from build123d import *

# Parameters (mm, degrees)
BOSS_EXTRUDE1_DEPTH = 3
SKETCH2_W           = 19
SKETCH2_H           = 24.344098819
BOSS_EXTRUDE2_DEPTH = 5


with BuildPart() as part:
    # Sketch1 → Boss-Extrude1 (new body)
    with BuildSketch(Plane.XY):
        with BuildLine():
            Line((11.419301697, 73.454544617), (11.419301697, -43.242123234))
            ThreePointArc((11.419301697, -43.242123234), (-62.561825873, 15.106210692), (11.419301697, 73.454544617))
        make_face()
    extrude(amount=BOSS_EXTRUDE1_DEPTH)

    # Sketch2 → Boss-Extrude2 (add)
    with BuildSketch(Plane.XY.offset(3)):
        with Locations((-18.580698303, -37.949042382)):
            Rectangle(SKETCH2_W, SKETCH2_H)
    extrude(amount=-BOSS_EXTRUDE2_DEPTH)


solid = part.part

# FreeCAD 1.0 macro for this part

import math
import FreeCAD as App
import Part
import Sketcher

doc = App.newDocument("Part")
body = doc.addObject("PartDesign::Body", "Body")

sketch1 = doc.addObject("Sketcher::SketchObject", "Sketch")
body.addObject(sketch1)
sketch1.AttachmentSupport = (doc.XY_Plane, [""])
sketch1.MapMode = "FlatFace"
sketch1.addGeometry(Part.LineSegment(App.Vector(11, -43, 0), App.Vector(11, 73, 0)), False)
sketch1.addGeometry(Part.ArcOfCircle(Part.Circle(App.Vector(-3, 15, 0), App.Vector(0, 0, 1), 60), math.radians(77), math.radians(283)), False)
sketch1.addConstraint(Sketcher.Constraint("Coincident", 0, 1, 1, 2))
sketch1.addConstraint(Sketcher.Constraint("Coincident", 1, 1, 0, 2))
sketch1.addConstraint(Sketcher.Constraint("Vertical", 0))
sketch1.addConstraint(Sketcher.Constraint("Radius", 1, 60.0))
sketch1.addConstraint(Sketcher.Constraint("DistanceX", -1, 1, 0, 1, 11.419302))
sketch1.addConstraint(Sketcher.Constraint("DistanceY", 0, 1, 0, 2, 116.696668))
sketch1.addConstraint(Sketcher.Constraint("DistanceY", -1, 1, 1, 3, 15.106211))
pad1 = doc.addObject("PartDesign::Pad", "Pad")
body.addObject(pad1)
pad1.Profile = sketch1
pad1.Length = 3

sketch2 = doc.addObject("Sketcher::SketchObject", "Sketch001")
body.addObject(sketch2)
sketch2.AttachmentSupport = (doc.XY_Plane, [""])
sketch2.MapMode = "FlatFace"
sketch2.AttachmentOffset = App.Placement(App.Vector(0, 0, 3), App.Rotation())
sketch2.addGeometry(Part.LineSegment(App.Vector(-28, -26, 0), App.Vector(-28, -50, 0)), False)
sketch2.addGeometry(Part.LineSegment(App.Vector(-28, -50, 0), App.Vector(-9, -50, 0)), False)
sketch2.addGeometry(Part.LineSegment(App.Vector(-9, -50, 0), App.Vector(-9, -26, 0)), False)
sketch2.addGeometry(Part.LineSegment(App.Vector(-9, -26, 0), App.Vector(-28, -26, 0)), False)
sketch2.addConstraint(Sketcher.Constraint("Coincident", 0, 2, 1, 1))
sketch2.addConstraint(Sketcher.Constraint("Coincident", 1, 2, 2, 1))
sketch2.addConstraint(Sketcher.Constraint("Coincident", 2, 2, 3, 1))
sketch2.addConstraint(Sketcher.Constraint("Coincident", 3, 2, 0, 1))
sketch2.addConstraint(Sketcher.Constraint("Vertical", 0))
sketch2.addConstraint(Sketcher.Constraint("Horizontal", 1))
sketch2.addConstraint(Sketcher.Constraint("Vertical", 2))
sketch2.addConstraint(Sketcher.Constraint("Horizontal", 3))
sketch2.addConstraint(Sketcher.Constraint("DistanceX", 1, 1, 1, 2, 19.0))
sketch2.addConstraint(Sketcher.Constraint("DistanceY", 0, 2, 0, 1, 24.344099))
sketch2.addConstraint(Sketcher.Constraint("DistanceX", 0, 2, -1, 1, 28.080698))
sketch2.addConstraint(Sketcher.Constraint("DistanceY", 0, 2, -1, 1, 50.121092))
pad2 = doc.addObject("PartDesign::Pad", "Pad001")
body.addObject(pad2)
pad2.Profile = sketch2
pad2.Length = 5
pad2.Reversed = True

doc.recompute()
